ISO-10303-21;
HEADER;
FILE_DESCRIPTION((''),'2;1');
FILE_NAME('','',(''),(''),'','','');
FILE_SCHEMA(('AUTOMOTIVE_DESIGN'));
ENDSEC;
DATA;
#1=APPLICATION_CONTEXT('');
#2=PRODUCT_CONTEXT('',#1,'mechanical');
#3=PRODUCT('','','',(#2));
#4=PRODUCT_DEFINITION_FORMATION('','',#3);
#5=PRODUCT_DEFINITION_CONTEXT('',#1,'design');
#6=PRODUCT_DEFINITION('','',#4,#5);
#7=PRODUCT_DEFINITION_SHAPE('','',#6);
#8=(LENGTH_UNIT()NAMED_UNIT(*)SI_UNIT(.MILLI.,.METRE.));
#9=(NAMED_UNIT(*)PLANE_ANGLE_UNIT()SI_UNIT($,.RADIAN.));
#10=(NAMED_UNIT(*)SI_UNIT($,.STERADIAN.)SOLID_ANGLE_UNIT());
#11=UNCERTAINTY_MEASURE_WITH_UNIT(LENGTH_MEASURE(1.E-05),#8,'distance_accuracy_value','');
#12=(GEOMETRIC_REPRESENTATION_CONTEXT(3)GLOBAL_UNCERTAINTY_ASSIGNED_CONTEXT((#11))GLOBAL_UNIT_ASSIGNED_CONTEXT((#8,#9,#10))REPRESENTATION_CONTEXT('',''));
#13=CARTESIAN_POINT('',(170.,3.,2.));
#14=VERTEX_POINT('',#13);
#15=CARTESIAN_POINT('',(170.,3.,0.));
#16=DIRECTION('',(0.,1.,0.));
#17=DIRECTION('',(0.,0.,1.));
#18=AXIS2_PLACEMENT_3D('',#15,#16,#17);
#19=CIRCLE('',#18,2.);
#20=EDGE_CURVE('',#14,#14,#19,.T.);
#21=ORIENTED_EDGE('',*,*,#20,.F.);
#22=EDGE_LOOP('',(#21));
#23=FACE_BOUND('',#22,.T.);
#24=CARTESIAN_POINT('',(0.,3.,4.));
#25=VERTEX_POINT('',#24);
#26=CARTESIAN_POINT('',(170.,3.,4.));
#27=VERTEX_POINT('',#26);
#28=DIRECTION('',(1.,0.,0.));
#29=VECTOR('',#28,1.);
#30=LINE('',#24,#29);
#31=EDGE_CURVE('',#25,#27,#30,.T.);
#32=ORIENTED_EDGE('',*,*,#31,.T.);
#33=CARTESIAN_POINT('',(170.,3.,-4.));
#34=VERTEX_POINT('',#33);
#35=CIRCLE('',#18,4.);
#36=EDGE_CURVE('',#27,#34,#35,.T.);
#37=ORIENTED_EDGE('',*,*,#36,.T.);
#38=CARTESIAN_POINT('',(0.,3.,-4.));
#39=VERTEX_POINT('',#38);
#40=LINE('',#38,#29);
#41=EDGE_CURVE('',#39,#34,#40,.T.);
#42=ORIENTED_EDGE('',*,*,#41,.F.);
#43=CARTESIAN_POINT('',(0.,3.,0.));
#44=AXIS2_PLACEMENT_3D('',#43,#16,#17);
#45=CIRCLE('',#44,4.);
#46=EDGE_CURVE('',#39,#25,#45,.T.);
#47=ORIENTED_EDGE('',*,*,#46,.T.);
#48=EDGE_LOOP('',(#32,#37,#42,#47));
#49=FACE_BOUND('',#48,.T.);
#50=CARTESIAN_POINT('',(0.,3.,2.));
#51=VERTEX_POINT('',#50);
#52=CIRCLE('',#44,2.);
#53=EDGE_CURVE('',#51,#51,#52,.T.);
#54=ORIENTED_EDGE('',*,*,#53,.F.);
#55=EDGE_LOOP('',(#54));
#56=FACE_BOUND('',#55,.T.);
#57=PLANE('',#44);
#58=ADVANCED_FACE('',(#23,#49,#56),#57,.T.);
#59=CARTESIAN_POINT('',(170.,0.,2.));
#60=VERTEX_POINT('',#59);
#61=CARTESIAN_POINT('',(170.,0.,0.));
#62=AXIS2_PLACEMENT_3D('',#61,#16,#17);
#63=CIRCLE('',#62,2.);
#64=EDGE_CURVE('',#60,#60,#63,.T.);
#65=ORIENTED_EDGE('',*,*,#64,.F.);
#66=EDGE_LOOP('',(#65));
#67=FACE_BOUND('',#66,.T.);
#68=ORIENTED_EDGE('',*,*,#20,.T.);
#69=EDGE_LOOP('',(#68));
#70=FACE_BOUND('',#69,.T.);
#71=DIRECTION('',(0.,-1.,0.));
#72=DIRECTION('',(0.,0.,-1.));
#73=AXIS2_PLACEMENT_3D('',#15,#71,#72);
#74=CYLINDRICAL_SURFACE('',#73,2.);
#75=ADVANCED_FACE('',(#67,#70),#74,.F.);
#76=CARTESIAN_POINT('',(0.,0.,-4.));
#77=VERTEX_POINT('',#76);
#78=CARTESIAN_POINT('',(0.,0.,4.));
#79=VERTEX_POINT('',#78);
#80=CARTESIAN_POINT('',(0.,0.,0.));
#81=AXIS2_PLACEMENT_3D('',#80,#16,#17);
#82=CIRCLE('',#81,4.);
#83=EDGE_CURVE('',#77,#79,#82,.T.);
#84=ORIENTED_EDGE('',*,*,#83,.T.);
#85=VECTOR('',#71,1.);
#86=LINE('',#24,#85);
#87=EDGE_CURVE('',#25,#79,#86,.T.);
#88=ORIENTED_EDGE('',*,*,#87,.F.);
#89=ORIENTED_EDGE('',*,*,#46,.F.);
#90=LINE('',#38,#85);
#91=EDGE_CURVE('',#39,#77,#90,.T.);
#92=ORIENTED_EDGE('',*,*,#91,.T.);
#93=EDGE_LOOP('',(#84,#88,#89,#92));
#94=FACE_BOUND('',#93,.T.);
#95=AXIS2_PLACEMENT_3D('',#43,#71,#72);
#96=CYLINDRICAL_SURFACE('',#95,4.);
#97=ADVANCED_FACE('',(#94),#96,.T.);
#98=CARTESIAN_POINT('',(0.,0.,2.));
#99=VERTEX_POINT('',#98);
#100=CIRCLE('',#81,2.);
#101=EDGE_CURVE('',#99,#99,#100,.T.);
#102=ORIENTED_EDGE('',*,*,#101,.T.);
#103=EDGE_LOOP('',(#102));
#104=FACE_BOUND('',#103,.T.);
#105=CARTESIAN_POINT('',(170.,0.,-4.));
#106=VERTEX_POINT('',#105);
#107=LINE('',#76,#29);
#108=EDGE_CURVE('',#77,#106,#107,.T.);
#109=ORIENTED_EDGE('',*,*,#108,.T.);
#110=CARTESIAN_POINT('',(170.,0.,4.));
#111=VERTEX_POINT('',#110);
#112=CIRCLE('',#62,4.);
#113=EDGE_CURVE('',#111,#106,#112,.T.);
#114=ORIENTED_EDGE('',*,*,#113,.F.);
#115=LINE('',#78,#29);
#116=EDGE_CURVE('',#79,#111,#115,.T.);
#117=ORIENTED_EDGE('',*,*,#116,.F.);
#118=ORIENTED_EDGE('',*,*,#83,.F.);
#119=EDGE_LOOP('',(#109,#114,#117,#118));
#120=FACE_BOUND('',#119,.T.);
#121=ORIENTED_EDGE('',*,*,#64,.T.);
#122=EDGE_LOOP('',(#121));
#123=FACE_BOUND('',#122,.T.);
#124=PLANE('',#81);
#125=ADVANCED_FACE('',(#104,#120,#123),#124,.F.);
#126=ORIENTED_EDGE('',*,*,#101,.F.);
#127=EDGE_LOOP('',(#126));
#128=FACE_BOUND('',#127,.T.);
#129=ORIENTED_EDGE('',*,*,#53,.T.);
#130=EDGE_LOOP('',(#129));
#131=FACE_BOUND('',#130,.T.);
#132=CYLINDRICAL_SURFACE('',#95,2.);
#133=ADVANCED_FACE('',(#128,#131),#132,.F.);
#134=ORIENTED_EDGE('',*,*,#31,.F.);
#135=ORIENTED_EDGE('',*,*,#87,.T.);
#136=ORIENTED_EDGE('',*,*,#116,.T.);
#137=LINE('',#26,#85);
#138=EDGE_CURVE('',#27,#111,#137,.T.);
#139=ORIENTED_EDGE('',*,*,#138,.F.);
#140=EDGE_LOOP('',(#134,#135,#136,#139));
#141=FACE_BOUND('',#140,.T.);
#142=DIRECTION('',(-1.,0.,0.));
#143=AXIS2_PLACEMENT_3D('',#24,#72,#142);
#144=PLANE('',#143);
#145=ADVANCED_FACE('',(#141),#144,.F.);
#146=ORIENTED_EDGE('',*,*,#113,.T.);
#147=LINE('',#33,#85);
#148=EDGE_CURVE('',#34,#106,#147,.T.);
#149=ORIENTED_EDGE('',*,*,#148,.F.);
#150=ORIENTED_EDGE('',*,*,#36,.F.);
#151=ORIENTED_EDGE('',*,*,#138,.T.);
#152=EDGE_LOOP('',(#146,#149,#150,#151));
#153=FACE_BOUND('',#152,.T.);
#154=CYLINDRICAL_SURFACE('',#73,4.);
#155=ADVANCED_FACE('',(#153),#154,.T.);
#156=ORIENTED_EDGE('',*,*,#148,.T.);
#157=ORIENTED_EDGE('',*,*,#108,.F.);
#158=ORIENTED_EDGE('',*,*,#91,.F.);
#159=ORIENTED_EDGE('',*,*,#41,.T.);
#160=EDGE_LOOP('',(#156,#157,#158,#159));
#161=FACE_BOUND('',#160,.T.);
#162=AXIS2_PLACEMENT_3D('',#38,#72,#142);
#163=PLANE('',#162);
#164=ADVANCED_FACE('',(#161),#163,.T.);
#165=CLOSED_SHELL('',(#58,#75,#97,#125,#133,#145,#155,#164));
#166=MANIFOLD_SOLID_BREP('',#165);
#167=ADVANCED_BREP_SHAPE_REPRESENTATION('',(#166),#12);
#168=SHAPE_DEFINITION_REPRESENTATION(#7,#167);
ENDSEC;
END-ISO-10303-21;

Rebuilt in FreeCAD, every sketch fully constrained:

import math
import FreeCAD as App
import Part
import Sketcher

V = App.Vector
Q = App.Units.Quantity

doc = App.newDocument("Part")
body = doc.addObject("PartDesign::Body", "Body")

# Sketch on XZ plane
sketch1 = body.newObject("Sketcher::SketchObject", "Sketch")
sketch1.AttachmentSupport = (doc.getObject("XZ_Plane"), [""])
sketch1.MapMode = "FlatFace"
sketch1.addGeometry(Part.LineSegment(V(170, -4, 0), V(0, -4, 0)), False)
sketch1.addGeometry(Part.ArcOfCircle(Part.Circle(V(0, 0, 0), V(0, 0, 1), 4), math.radians(90), math.radians(270)), False)
sketch1.addGeometry(Part.LineSegment(V(0, 4, 0), V(170, 4, 0)), False)
sketch1.addGeometry(Part.ArcOfCircle(Part.Circle(V(170, 0, 0), V(0, 0, 1), 4), math.radians(-90), math.radians(90)), False)
sketch1.addGeometry(Part.Circle(V(0, 0, 0), V(0, 0, 1), 2), False)
sketch1.addGeometry(Part.Circle(V(170, 0, 0), V(0, 0, 1), 2), False)
sketch1.addConstraint(Sketcher.Constraint("Tangent", 0, 2, 1, 2))
sketch1.addConstraint(Sketcher.Constraint("Tangent", 1, 1, 2, 1))
sketch1.addConstraint(Sketcher.Constraint("Tangent", 2, 2, 3, 2))
sketch1.addConstraint(Sketcher.Constraint("Tangent", 3, 1, 0, 1))
sketch1.addConstraint(Sketcher.Constraint("Horizontal", 0))
sketch1.addConstraint(Sketcher.Constraint("Horizontal", 2))
sketch1.addConstraint(Sketcher.Constraint("Coincident", 1, 3, -1, 1))
sketch1.addConstraint(Sketcher.Constraint("Coincident", 4, 3, -1, 1))
sketch1.addConstraint(Sketcher.Constraint("Coincident", 5, 3, 3, 3))
sketch1.addConstraint(Sketcher.Constraint("Equal", 4, 5))
sketch1.addConstraint(Sketcher.Constraint("Diameter", 4, Q("4 mm")))
sketch1.addConstraint(Sketcher.Constraint("Radius", 1, Q("4 mm")))
sketch1.addConstraint(Sketcher.Constraint("DistanceX", 0, 2, 0, 1, Q("170 mm")))
pad1 = body.newObject("PartDesign::Pad", "Pad")
pad1.Profile = sketch1
pad1.Length = 3
pad1.Reversed = True

doc.recompute()
